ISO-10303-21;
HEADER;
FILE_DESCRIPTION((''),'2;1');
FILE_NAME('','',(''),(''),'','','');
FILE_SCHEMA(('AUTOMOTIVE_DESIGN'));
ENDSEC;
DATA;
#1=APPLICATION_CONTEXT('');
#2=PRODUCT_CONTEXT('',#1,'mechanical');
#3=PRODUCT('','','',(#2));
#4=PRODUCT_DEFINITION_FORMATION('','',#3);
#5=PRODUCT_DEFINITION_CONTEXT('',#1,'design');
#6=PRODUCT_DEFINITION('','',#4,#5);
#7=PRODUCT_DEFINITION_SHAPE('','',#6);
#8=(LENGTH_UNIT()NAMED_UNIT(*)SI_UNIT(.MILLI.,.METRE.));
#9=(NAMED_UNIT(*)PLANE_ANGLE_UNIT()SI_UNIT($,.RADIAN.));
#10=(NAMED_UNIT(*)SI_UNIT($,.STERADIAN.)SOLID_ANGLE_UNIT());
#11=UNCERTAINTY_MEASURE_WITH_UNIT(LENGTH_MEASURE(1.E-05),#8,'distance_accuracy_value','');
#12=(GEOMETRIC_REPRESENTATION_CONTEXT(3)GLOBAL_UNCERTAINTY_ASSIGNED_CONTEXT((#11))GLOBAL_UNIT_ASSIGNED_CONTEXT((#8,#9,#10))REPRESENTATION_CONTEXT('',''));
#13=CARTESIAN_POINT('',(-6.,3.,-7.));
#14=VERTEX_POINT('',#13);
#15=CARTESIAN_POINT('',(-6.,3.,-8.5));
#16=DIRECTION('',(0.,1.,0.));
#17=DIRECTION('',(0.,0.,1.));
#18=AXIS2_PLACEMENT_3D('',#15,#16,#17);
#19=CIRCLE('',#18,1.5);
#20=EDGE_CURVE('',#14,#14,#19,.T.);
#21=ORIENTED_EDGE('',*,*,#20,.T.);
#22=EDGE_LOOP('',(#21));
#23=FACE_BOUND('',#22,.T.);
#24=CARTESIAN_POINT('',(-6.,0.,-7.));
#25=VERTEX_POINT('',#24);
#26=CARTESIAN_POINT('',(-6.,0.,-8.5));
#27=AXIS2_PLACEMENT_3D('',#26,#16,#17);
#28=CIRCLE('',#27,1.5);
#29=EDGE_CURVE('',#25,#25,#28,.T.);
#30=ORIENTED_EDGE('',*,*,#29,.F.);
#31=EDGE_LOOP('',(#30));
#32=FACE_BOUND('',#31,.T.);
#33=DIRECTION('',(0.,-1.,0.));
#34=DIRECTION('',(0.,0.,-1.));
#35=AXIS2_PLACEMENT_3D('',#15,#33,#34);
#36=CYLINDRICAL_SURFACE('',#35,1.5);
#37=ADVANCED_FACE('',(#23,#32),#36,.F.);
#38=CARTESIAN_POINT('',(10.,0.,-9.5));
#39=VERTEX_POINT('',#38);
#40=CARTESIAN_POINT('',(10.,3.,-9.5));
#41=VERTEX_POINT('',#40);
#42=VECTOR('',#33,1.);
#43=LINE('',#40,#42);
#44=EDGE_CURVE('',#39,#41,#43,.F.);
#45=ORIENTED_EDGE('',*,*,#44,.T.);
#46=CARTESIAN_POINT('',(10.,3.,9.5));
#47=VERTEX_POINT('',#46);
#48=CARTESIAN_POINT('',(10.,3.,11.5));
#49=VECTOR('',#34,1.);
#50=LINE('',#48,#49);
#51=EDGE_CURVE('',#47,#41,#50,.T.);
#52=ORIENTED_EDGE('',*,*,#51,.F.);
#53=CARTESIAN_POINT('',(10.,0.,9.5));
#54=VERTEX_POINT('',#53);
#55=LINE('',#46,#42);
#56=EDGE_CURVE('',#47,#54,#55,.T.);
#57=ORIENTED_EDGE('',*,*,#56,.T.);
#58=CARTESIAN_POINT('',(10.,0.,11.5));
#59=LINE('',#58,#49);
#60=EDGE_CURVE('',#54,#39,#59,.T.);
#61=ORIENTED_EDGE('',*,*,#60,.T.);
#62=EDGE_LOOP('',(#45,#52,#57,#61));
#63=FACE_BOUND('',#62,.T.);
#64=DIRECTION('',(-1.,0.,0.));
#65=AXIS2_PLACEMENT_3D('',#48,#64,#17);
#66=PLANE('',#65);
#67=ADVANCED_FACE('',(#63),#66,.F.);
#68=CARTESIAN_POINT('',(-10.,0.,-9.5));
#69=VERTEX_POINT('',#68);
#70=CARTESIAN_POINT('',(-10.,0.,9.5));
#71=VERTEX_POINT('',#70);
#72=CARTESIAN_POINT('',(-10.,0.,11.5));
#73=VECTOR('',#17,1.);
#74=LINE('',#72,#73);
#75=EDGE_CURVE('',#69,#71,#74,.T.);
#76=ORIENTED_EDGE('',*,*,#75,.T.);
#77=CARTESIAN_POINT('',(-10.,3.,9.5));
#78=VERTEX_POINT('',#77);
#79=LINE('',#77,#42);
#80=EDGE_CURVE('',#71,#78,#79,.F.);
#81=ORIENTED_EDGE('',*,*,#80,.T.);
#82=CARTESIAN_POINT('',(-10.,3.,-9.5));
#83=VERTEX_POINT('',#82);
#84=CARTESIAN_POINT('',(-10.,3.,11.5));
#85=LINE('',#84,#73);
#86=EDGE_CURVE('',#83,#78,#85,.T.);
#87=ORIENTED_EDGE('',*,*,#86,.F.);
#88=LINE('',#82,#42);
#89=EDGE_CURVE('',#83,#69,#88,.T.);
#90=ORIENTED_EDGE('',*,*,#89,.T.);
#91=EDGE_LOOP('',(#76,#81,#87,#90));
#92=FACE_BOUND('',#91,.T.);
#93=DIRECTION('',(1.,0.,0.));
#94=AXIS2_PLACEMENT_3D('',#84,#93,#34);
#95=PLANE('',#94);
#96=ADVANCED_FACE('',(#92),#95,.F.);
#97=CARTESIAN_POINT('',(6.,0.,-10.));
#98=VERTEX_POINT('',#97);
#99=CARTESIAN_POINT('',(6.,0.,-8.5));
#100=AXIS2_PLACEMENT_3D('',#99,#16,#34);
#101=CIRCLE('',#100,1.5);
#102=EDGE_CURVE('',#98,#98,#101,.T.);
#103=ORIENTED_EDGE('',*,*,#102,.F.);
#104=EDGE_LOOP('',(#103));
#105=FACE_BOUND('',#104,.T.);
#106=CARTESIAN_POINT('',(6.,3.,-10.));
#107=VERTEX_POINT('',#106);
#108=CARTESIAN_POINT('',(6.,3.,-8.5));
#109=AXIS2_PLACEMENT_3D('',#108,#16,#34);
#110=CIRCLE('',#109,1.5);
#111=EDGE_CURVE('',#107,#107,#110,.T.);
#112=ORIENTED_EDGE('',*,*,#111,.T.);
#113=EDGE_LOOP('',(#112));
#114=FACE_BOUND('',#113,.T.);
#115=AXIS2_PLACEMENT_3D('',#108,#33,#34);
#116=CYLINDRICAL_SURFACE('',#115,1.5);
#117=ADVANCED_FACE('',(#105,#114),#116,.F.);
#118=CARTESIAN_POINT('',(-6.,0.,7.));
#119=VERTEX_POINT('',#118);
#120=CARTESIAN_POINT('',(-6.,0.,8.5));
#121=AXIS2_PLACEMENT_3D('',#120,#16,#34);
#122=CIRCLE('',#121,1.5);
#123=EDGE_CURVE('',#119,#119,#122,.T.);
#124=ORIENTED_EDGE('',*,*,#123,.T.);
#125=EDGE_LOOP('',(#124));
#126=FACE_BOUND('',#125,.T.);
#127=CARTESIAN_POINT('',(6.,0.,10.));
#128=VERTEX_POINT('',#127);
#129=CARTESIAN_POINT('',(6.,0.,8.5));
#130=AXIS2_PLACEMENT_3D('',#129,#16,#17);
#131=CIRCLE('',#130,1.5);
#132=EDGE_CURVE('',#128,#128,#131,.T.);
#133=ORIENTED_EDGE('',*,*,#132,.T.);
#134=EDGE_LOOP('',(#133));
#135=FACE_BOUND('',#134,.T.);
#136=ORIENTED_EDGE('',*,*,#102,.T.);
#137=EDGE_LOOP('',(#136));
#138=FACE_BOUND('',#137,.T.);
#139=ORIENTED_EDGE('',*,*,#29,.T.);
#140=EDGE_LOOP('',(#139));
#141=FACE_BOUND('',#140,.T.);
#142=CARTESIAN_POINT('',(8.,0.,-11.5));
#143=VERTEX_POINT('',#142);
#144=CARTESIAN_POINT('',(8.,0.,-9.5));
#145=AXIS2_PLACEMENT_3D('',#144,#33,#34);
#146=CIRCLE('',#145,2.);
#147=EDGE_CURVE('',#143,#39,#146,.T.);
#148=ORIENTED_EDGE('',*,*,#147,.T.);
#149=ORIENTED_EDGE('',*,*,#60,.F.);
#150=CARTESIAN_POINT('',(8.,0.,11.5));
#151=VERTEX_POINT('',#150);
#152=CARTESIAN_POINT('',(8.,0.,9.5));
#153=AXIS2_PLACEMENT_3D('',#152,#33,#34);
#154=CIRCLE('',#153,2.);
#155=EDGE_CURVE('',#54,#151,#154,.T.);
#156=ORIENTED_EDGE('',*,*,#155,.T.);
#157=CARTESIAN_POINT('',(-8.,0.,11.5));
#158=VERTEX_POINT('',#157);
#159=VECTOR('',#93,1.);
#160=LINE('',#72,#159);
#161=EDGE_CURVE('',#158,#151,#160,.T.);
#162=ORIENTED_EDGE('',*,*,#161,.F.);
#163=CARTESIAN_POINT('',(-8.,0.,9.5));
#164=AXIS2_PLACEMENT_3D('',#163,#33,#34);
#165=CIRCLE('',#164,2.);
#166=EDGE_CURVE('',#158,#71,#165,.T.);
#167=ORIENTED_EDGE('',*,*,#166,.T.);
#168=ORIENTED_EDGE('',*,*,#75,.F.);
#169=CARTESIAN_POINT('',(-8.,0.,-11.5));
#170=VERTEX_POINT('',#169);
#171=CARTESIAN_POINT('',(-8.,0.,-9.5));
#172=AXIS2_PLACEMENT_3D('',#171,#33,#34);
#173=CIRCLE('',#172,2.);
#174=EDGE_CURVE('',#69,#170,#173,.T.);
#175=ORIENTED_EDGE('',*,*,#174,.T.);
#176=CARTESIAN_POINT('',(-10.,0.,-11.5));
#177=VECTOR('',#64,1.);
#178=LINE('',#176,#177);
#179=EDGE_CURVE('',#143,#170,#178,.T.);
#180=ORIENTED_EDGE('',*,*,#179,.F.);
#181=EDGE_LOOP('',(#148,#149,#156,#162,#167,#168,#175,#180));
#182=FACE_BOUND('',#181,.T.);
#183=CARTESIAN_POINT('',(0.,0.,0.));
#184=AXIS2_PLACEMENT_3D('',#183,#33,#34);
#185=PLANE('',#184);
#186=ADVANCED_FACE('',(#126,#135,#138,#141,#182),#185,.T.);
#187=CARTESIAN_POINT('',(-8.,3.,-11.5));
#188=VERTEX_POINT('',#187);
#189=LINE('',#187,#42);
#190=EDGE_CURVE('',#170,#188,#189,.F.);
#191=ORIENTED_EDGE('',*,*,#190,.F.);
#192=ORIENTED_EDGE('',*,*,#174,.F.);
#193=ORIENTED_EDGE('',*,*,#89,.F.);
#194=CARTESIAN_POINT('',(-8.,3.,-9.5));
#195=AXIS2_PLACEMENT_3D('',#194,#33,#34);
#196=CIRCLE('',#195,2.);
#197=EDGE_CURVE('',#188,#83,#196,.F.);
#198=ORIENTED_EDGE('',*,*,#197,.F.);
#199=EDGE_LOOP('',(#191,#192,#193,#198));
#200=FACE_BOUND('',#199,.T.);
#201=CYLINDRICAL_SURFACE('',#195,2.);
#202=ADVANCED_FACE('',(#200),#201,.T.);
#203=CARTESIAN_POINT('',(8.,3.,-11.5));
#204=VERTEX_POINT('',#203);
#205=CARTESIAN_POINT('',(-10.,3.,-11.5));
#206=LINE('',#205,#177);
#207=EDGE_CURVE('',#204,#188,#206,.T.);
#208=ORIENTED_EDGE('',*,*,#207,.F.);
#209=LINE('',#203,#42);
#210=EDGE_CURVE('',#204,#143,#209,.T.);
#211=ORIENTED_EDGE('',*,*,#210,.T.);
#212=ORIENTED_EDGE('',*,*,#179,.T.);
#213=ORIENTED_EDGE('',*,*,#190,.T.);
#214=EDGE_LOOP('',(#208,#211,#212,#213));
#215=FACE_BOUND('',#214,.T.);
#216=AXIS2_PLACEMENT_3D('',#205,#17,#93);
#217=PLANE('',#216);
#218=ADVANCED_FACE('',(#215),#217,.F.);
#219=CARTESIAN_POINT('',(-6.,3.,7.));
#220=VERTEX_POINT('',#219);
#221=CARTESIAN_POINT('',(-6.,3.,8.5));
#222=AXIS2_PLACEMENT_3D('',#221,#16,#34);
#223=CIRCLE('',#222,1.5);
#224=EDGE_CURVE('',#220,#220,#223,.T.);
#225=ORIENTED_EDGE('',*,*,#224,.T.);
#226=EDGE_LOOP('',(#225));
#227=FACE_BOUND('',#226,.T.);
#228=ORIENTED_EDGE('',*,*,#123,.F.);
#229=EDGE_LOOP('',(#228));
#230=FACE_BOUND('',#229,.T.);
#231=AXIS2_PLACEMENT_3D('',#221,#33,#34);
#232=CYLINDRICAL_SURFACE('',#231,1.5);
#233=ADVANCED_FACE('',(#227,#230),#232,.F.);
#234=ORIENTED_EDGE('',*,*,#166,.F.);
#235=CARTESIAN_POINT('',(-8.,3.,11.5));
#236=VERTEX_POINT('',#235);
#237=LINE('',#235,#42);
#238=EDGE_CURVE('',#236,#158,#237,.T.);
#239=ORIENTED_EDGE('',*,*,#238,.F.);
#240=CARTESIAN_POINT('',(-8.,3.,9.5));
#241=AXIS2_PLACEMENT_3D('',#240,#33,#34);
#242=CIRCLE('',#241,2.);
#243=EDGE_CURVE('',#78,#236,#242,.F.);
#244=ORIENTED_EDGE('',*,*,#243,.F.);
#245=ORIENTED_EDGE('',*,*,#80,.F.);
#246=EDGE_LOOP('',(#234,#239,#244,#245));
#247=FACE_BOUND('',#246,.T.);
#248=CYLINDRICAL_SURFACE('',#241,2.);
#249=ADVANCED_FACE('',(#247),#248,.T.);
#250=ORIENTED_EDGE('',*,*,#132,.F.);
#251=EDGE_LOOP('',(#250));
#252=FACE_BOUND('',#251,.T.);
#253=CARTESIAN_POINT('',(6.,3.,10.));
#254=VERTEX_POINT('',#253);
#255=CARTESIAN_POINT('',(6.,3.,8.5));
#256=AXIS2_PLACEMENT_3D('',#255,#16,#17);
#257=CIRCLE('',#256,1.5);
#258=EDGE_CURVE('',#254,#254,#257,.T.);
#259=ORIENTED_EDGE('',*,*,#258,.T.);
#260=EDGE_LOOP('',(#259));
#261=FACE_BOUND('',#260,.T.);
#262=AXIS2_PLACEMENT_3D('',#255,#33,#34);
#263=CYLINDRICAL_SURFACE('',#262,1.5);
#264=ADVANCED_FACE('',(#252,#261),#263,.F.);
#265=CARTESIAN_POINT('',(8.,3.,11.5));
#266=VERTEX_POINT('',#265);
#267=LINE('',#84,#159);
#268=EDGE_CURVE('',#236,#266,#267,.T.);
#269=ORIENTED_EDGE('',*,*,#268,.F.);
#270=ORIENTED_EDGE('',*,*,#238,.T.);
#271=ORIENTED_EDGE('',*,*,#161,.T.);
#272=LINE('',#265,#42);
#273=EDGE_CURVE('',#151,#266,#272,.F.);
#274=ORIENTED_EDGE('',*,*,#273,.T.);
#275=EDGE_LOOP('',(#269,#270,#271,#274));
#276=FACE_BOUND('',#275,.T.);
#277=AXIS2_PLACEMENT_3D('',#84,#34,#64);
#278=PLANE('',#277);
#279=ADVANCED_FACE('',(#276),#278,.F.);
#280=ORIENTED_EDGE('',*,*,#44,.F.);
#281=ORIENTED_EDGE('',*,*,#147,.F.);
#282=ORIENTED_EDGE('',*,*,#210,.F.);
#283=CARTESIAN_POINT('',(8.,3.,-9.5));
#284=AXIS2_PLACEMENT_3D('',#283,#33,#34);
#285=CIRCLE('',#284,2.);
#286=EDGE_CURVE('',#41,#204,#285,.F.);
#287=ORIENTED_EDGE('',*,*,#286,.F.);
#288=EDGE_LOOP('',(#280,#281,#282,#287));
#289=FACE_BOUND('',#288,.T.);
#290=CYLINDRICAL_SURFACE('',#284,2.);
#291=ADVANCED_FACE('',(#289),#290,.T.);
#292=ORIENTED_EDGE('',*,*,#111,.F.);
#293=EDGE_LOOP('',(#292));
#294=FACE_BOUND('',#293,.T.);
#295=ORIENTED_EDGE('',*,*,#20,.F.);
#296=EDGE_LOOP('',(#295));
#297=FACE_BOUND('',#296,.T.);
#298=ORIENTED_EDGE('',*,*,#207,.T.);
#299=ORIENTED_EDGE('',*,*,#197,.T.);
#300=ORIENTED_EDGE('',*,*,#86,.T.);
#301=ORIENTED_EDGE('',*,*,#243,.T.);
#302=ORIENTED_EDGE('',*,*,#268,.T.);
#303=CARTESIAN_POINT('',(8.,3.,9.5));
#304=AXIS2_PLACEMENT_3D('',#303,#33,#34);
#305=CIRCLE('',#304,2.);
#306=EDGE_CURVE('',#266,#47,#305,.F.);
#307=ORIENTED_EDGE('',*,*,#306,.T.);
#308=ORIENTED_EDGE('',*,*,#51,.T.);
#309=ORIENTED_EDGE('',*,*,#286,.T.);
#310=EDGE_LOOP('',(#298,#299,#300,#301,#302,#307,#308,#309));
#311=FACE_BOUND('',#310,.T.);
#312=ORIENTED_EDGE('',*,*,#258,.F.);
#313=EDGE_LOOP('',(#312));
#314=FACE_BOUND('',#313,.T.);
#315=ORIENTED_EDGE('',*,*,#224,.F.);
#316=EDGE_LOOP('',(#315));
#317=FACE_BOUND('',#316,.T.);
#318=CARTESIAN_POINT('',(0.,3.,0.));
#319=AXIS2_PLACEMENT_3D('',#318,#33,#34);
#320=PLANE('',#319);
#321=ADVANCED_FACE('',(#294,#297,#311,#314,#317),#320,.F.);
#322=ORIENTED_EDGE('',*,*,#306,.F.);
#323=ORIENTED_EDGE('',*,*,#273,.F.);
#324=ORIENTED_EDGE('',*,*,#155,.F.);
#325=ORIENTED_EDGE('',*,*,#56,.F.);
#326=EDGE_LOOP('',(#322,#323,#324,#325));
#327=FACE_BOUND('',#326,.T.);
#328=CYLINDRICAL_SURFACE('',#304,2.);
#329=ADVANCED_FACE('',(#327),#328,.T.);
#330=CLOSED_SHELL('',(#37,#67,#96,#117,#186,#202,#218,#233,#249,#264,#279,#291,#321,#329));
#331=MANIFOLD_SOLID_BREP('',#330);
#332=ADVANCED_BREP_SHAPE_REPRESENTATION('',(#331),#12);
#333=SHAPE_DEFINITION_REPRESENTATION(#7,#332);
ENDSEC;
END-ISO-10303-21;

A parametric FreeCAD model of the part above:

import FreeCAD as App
import Part
import Sketcher

V = App.Vector
Q = App.Units.Quantity


def edges_at(feature, points):
    """Names of the edges that pass closest to the given points."""
    edges = feature.Shape.Edges
    near = lambda p: min(range(len(edges)), key=lambda i: edges[i].distToShape(Part.Vertex(*p))[0])
    return sorted({f"Edge{near(p) + 1}" for p in points})


def add_polygon(sketch, points):
    """Adds a closed chain of lines whose ends are joined by coincident constraints."""
    first, n = sketch.GeometryCount, len(points)
    for a, b in zip(points, points[1:] + points[:1]):
        sketch.addGeometry(Part.LineSegment(App.Vector(*a, 0), App.Vector(*b, 0)), False)
    for i in range(n):
        sketch.addConstraint(Sketcher.Constraint("Coincident", first + i, 2, first + (i + 1) % n, 1))

doc = App.newDocument("Part")
params = doc.addObject("Spreadsheet::Sheet", "Params")
for row, (alias, value) in enumerate([
    ("sketch1_diameter", "3 mm"),
    ("sketch1_width", "20 mm"),
    ("sketch1_height", "23 mm"),
    ("pad1_length", "3 mm"),
    ("fillet_radius", "2 mm"),
], start=1):
    params.set(f"A{row}", alias)
    params.set(f"B{row}", "=" + value)
    params.setAlias(f"B{row}", alias)

body = doc.addObject("PartDesign::Body", "Body")

# Sketch on XZ plane
sketch1 = doc.addObject("Sketcher::SketchObject", "Sketch")
body.addObject(sketch1)
sketch1.AttachmentSupport = (doc.XZ_Plane, [""])
sketch1.MapMode = "FlatFace"
add_polygon(sketch1, [(-10, -11.5), (-10, 11.5), (10, 11.5), (10, -11.5)])  # lines 0-3
sketch1.addGeometry(Part.Circle(V(-6, 8.5, 0), V(0, 0, 1), 1.5), False)  # 4
sketch1.addGeometry(Part.Circle(V(6, 8.5, 0), V(0, 0, 1), 1.5), False)  # 5
sketch1.addGeometry(Part.Circle(V(-6, -8.5, 0), V(0, 0, 1), 1.5), False)  # 6
sketch1.addGeometry(Part.Circle(V(6, -8.5, 0), V(0, 0, 1), 1.5), False)  # 7
sketch1.addConstraint(Sketcher.Constraint("Vertical", 0))
sketch1.addConstraint(Sketcher.Constraint("Horizontal", 1))
sketch1.addConstraint(Sketcher.Constraint("Vertical", 2))
sketch1.addConstraint(Sketcher.Constraint("Horizontal", 3))
sketch1.addConstraint(Sketcher.Constraint("Equal", 4, 5))
sketch1.addConstraint(Sketcher.Constraint("Equal", 5, 6))
sketch1.addConstraint(Sketcher.Constraint("Equal", 6, 7))
sketch1.addConstraint(Sketcher.Constraint("Symmetric", 5, 3, 6, 3, -1, 1))
sketch1.addConstraint(Sketcher.Constraint("Symmetric", 4, 3, 7, 3, -1, 1))
sketch1.addConstraint(Sketcher.Constraint("Symmetric", 0, 2, 2, 2, -1, 1))
sketch1.addConstraint(Sketcher.Constraint("Symmetric", 4, 3, 5, 3, -2))
sketch1.addConstraint(Sketcher.Constraint("Diameter", 4, Q("3 mm")))
sketch1.addConstraint(Sketcher.Constraint("DistanceX", 1, 1, 1, 2, Q("20 mm")))
sketch1.addConstraint(Sketcher.Constraint("DistanceY", 0, 1, 0, 2, Q("23 mm")))
sketch1.addConstraint(Sketcher.Constraint("DistanceX", 4, 3, -1, 1, Q("6 mm")))
sketch1.addConstraint(Sketcher.Constraint("DistanceY", 6, 3, 4, 3, Q("17 mm")))
sketch1.setExpression("Constraints[15]", "Params.sketch1_diameter")
sketch1.setExpression("Constraints[16]", "Params.sketch1_width")
sketch1.setExpression("Constraints[17]", "Params.sketch1_height")
pad1 = doc.addObject("PartDesign::Pad", "Pad")
body.addObject(pad1)
pad1.Profile = sketch1
pad1.setExpression("Length", "Params.pad1_length")
pad1.Reversed = True
doc.recompute()

fillet = doc.addObject("PartDesign::Fillet", "Fillet")
body.addObject(fillet)
fillet.Base = (pad1, edges_at(pad1, [
    (10, 1.5, 11.5),
    (-10, 1.5, 11.5),
    (-10, 1.5, -11.5),
    (10, 1.5, -11.5),
]))
fillet.setExpression("Radius", "Params.fillet_radius")

doc.recompute()
